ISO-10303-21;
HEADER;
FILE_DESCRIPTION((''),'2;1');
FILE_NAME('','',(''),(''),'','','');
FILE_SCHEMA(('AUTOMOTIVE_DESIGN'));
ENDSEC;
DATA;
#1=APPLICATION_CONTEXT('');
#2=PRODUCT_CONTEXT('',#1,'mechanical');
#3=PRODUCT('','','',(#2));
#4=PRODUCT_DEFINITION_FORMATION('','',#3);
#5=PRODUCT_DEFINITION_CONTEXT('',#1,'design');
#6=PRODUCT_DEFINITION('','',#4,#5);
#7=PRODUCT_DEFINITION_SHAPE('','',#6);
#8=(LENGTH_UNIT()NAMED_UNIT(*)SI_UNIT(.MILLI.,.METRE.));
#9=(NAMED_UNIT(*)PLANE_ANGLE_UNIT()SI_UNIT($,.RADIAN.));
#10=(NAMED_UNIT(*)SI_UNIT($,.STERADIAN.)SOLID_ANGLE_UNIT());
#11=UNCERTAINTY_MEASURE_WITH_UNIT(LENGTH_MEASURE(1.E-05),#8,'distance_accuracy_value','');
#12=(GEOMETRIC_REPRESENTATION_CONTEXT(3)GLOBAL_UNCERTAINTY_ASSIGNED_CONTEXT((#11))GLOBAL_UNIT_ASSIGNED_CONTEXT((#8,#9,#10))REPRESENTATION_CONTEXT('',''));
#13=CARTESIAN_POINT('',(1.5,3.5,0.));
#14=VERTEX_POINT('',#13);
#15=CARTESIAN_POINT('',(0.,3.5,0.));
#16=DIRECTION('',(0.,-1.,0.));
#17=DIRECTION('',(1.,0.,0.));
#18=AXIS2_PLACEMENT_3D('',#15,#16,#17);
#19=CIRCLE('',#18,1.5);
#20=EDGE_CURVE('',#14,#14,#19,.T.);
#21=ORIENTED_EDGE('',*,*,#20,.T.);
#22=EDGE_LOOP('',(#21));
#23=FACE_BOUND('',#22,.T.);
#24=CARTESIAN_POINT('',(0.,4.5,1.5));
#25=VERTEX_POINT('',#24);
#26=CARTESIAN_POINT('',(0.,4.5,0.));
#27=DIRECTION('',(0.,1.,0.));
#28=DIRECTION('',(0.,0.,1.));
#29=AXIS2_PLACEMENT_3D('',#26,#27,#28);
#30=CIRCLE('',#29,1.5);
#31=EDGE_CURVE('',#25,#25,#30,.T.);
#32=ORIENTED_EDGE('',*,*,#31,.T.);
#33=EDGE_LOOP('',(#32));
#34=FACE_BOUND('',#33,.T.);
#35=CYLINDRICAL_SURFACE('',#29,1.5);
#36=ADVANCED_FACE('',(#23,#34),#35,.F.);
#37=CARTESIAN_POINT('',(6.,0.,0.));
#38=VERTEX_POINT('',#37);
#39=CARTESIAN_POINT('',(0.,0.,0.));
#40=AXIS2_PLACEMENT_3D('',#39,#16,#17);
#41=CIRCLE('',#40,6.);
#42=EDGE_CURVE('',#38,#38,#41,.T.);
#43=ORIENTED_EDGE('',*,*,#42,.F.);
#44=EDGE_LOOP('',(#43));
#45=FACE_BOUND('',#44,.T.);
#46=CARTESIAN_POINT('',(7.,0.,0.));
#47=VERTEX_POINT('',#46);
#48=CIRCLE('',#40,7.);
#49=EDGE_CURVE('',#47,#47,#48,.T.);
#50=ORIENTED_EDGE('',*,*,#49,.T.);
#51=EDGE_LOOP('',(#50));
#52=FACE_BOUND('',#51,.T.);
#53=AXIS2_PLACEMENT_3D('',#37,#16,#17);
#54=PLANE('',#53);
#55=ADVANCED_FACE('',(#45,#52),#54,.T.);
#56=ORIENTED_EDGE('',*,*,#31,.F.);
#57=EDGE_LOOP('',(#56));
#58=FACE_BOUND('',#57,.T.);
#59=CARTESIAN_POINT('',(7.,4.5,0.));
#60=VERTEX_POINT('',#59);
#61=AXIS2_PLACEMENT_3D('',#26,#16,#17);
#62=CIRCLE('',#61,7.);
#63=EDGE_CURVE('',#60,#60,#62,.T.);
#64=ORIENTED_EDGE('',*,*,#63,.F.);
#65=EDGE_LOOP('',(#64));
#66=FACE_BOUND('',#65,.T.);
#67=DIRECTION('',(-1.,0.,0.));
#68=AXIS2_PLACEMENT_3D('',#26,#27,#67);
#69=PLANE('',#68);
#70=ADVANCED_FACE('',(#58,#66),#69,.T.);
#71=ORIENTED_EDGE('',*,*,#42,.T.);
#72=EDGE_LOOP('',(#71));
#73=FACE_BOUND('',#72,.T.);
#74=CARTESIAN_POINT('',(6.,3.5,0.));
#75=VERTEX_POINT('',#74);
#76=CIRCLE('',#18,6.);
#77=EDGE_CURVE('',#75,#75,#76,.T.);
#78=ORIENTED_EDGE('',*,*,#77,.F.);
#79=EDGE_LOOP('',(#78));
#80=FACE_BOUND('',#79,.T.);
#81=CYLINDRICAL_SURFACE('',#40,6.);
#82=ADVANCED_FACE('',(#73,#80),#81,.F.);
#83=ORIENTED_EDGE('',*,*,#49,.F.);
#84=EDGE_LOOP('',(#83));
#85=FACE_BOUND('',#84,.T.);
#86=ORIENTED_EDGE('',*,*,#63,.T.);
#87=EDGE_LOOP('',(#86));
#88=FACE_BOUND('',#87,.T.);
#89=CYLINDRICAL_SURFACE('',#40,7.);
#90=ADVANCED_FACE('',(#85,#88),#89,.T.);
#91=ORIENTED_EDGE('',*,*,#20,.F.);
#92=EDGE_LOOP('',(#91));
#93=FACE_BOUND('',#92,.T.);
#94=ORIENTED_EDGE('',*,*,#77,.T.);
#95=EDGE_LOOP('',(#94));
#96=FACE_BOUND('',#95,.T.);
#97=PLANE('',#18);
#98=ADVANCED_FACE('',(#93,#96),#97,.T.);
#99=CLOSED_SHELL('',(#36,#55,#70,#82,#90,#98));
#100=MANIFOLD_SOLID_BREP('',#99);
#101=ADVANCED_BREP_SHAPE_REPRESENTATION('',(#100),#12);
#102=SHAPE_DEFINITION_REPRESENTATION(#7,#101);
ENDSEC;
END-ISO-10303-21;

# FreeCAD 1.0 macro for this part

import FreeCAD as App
import Part
import Sketcher

V = App.Vector
Q = App.Units.Quantity

doc = App.newDocument("Part")
body = doc.addObject("PartDesign::Body", "Body")

sketch1 = body.newObject("Sketcher::SketchObject", "Sketch")
sketch1.AttachmentSupport = (doc.getObject("XY_Plane"), [""])
sketch1.MapMode = "FlatFace"
sketch1.addGeometry([
    Part.LineSegment(V(7, 4.5, 0), V(0, 4.5, 0)),
    Part.LineSegment(V(0, 4.5, 0), V(0, 3.5, 0)),
    Part.LineSegment(V(0, 3.5, 0), V(6, 3.5, 0)),
    Part.LineSegment(V(6, 3.5, 0), V(6, 0, 0)),
    Part.LineSegment(V(6, 0, 0), V(7, 0, 0)),
    Part.LineSegment(V(7, 0, 0), V(7, 4.5, 0)),
], False)
sketch1.addConstraint([
    Sketcher.Constraint("Coincident", 0, 2, 1, 1),
    Sketcher.Constraint("Coincident", 1, 2, 2, 1),
    Sketcher.Constraint("Coincident", 2, 2, 3, 1),
    Sketcher.Constraint("Coincident", 3, 2, 4, 1),
    Sketcher.Constraint("Coincident", 4, 2, 5, 1),
    Sketcher.Constraint("Coincident", 5, 2, 0, 1),
    Sketcher.Constraint("Horizontal", 0),
    Sketcher.Constraint("Vertical", 1),
    Sketcher.Constraint("Horizontal", 2),
    Sketcher.Constraint("Vertical", 3),
    Sketcher.Constraint("Horizontal", 4),
    Sketcher.Constraint("Vertical", 5),
    Sketcher.Constraint("PointOnObject", 0, 2, -2),
    Sketcher.Constraint("PointOnObject", 3, 2, -1),
    Sketcher.Constraint("Equal", 4, 1),
    Sketcher.Constraint("DistanceX", 0, 2, 0, 1, Q("7 mm")),
    Sketcher.Constraint("DistanceX", 2, 1, 2, 2, Q("6 mm")),
    Sketcher.Constraint("DistanceY", 3, 2, 3, 1, Q("3.5 mm")),
])
revolution = body.newObject("PartDesign::Revolution", "Revolution")
revolution.Profile = sketch1
revolution.ReferenceAxis = (sketch1, ["V_Axis"])
revolution.Angle = 360

sketch2 = body.newObject("Sketcher::SketchObject", "Sketch001")
sketch2.AttachmentSupport = (doc.getObject("XZ_Plane"), [""])
sketch2.MapMode = "FlatFace"
sketch2.AttachmentOffset = App.Placement(V(0, 0, -4.5), App.Rotation())
sketch2.addGeometry(Part.Circle(V(0, 0, 0), V(0, 0, 1), 1.5), False)
sketch2.addConstraint([
    Sketcher.Constraint("Coincident", 0, 3, -1, 1),
    Sketcher.Constraint("Diameter", 0, Q("3 mm")),
])
doc.recompute()
hole = body.newObject("PartDesign::Hole", "Hole")
hole.Profile = sketch2
hole.ThreadType = "None"
hole.Diameter = 3
hole.DepthType = "Dimension"
hole.Depth = 7.598709
hole.DrillPoint = "Angled"
hole.DrillPointAngle = 118
hole.Reversed = True

doc.recompute()
